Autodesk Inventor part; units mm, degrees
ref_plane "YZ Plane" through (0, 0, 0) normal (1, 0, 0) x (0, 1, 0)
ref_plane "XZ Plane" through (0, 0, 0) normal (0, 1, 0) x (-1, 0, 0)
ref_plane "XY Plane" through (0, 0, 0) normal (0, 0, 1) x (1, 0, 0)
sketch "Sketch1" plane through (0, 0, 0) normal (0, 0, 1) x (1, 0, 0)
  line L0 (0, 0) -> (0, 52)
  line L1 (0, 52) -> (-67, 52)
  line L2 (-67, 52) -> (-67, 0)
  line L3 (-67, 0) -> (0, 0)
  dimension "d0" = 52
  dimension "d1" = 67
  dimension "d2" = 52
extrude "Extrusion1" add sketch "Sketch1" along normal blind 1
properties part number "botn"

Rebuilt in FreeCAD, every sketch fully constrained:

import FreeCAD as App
import Part
import Sketcher

V = App.Vector

doc = App.newDocument("Part")
params = doc.addObject("Spreadsheet::Sheet", "Params")
for row, (alias, value) in enumerate([
    ("sketch1_width", "67 mm"),
    ("sketch1_height", "52 mm"),
    ("pad1_length", "1 mm"),
], start=1):
    params.set(f"A{row}", alias)
    params.set(f"B{row}", "=" + value)
    params.setAlias(f"B{row}", alias)

body = doc.addObject("PartDesign::Body", "Body")

sketch1 = doc.addObject("Sketcher::SketchObject", "Sketch")
body.addObject(sketch1)
sketch1.AttachmentSupport = (doc.XY_Plane, [""])
sketch1.MapMode = "FlatFace"
sketch1.addGeometry(Part.LineSegment(V(-67, 0, 0), V(0, 0, 0)), False)
sketch1.addGeometry(Part.LineSegment(V(0, 0, 0), V(0, 52, 0)), False)
sketch1.addGeometry(Part.LineSegment(V(0, 52, 0), V(-67, 52, 0)), False)
sketch1.addGeometry(Part.LineSegment(V(-67, 52, 0), V(-67, 0, 0)), False)
sketch1.addConstraint(Sketcher.Constraint("Coincident", 0, 2, 1, 1))
sketch1.addConstraint(Sketcher.Constraint("Coincident", 1, 2, 2, 1))
sketch1.addConstraint(Sketcher.Constraint("Coincident", 2, 2, 3, 1))
sketch1.addConstraint(Sketcher.Constraint("Coincident", 3, 2, 0, 1))
sketch1.addConstraint(Sketcher.Constraint("Horizontal", 0))
sketch1.addConstraint(Sketcher.Constraint("Vertical", 1))
sketch1.addConstraint(Sketcher.Constraint("Horizontal", 2))
sketch1.addConstraint(Sketcher.Constraint("Vertical", 3))
sketch1.addConstraint(Sketcher.Constraint("Coincident", 0, 2, -1, 1))
sketch1.addConstraint(Sketcher.Constraint("DistanceX", 0, 1, 0, 2, 67.0))
sketch1.addConstraint(Sketcher.Constraint("DistanceY", 1, 1, 1, 2, 52.0))
sketch1.setExpression("Constraints[9]", "Params.sketch1_width")
sketch1.setExpression("Constraints[10]", "Params.sketch1_height")
pad1 = doc.addObject("PartDesign::Pad", "Pad")
body.addObject(pad1)
pad1.Profile = sketch1
pad1.setExpression("Length", "Params.pad1_length")

doc.recompute()
